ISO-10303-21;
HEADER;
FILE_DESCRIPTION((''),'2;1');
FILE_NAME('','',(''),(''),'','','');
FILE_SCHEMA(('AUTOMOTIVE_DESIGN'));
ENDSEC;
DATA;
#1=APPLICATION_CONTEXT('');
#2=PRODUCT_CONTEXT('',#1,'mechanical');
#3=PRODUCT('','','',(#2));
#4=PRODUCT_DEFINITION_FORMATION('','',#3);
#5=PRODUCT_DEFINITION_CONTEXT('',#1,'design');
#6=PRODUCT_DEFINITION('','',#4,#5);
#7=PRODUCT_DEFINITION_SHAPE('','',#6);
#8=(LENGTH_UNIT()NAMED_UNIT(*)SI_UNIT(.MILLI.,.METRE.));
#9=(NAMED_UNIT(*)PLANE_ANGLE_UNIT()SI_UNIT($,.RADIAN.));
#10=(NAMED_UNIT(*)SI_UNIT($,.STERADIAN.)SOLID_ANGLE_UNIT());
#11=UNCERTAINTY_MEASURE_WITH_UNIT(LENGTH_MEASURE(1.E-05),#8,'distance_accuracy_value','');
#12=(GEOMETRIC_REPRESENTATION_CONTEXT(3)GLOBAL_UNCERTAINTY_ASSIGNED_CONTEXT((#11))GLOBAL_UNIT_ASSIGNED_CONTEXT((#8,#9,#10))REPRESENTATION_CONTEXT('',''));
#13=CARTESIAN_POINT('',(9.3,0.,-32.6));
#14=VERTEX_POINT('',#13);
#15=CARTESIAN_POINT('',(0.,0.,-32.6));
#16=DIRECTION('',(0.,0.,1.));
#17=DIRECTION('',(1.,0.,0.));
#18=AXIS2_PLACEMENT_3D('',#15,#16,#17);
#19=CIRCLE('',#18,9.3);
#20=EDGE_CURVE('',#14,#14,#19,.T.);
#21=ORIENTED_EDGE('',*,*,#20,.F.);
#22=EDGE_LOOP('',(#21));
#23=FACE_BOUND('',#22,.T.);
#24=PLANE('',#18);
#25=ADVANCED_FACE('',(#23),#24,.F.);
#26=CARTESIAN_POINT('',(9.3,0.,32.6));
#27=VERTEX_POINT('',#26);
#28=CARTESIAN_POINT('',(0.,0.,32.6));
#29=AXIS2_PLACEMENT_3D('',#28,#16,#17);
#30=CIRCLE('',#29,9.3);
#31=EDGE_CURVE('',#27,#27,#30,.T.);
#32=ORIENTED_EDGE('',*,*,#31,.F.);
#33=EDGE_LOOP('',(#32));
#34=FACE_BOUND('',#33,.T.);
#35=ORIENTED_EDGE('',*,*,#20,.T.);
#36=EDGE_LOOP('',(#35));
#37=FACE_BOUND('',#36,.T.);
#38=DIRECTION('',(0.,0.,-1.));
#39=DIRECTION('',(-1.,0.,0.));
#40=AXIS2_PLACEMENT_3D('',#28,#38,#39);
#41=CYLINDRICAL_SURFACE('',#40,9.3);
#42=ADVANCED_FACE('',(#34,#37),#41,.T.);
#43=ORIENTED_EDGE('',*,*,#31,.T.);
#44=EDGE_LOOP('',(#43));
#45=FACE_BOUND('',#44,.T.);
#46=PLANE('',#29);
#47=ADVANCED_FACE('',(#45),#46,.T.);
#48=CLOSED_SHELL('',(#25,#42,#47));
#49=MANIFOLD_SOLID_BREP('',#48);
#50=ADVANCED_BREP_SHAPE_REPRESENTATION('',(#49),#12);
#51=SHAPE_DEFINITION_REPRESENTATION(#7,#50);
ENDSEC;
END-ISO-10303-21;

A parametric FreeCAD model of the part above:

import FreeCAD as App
import Part
import Sketcher
from FreeCAD import Vector
Q = App.Units.Quantity

doc = App.newDocument("Part")
body = doc.addObject("PartDesign::Body", "Body")

sketch1 = doc.addObject("Sketcher::SketchObject", "Sketch")
body.addObject(sketch1)
sketch1.AttachmentSupport = (doc.XY_Plane, [""])
sketch1.MapMode = "FlatFace"
sketch1.addGeometry(Part.Circle(Vector(0, 0, 0), Vector(0, 0, 1), 9), False)
sketch1.addConstraint(Sketcher.Constraint("Coincident", 0, 3, -1, 1))
sketch1.addConstraint(Sketcher.Constraint("Diameter", 0, Q("18.6 mm")))
pad1 = doc.addObject("PartDesign::Pad", "Pad")
body.addObject(pad1)
pad1.Profile = sketch1
pad1.Length = 65.2
pad1.Midplane = True

doc.recompute()
